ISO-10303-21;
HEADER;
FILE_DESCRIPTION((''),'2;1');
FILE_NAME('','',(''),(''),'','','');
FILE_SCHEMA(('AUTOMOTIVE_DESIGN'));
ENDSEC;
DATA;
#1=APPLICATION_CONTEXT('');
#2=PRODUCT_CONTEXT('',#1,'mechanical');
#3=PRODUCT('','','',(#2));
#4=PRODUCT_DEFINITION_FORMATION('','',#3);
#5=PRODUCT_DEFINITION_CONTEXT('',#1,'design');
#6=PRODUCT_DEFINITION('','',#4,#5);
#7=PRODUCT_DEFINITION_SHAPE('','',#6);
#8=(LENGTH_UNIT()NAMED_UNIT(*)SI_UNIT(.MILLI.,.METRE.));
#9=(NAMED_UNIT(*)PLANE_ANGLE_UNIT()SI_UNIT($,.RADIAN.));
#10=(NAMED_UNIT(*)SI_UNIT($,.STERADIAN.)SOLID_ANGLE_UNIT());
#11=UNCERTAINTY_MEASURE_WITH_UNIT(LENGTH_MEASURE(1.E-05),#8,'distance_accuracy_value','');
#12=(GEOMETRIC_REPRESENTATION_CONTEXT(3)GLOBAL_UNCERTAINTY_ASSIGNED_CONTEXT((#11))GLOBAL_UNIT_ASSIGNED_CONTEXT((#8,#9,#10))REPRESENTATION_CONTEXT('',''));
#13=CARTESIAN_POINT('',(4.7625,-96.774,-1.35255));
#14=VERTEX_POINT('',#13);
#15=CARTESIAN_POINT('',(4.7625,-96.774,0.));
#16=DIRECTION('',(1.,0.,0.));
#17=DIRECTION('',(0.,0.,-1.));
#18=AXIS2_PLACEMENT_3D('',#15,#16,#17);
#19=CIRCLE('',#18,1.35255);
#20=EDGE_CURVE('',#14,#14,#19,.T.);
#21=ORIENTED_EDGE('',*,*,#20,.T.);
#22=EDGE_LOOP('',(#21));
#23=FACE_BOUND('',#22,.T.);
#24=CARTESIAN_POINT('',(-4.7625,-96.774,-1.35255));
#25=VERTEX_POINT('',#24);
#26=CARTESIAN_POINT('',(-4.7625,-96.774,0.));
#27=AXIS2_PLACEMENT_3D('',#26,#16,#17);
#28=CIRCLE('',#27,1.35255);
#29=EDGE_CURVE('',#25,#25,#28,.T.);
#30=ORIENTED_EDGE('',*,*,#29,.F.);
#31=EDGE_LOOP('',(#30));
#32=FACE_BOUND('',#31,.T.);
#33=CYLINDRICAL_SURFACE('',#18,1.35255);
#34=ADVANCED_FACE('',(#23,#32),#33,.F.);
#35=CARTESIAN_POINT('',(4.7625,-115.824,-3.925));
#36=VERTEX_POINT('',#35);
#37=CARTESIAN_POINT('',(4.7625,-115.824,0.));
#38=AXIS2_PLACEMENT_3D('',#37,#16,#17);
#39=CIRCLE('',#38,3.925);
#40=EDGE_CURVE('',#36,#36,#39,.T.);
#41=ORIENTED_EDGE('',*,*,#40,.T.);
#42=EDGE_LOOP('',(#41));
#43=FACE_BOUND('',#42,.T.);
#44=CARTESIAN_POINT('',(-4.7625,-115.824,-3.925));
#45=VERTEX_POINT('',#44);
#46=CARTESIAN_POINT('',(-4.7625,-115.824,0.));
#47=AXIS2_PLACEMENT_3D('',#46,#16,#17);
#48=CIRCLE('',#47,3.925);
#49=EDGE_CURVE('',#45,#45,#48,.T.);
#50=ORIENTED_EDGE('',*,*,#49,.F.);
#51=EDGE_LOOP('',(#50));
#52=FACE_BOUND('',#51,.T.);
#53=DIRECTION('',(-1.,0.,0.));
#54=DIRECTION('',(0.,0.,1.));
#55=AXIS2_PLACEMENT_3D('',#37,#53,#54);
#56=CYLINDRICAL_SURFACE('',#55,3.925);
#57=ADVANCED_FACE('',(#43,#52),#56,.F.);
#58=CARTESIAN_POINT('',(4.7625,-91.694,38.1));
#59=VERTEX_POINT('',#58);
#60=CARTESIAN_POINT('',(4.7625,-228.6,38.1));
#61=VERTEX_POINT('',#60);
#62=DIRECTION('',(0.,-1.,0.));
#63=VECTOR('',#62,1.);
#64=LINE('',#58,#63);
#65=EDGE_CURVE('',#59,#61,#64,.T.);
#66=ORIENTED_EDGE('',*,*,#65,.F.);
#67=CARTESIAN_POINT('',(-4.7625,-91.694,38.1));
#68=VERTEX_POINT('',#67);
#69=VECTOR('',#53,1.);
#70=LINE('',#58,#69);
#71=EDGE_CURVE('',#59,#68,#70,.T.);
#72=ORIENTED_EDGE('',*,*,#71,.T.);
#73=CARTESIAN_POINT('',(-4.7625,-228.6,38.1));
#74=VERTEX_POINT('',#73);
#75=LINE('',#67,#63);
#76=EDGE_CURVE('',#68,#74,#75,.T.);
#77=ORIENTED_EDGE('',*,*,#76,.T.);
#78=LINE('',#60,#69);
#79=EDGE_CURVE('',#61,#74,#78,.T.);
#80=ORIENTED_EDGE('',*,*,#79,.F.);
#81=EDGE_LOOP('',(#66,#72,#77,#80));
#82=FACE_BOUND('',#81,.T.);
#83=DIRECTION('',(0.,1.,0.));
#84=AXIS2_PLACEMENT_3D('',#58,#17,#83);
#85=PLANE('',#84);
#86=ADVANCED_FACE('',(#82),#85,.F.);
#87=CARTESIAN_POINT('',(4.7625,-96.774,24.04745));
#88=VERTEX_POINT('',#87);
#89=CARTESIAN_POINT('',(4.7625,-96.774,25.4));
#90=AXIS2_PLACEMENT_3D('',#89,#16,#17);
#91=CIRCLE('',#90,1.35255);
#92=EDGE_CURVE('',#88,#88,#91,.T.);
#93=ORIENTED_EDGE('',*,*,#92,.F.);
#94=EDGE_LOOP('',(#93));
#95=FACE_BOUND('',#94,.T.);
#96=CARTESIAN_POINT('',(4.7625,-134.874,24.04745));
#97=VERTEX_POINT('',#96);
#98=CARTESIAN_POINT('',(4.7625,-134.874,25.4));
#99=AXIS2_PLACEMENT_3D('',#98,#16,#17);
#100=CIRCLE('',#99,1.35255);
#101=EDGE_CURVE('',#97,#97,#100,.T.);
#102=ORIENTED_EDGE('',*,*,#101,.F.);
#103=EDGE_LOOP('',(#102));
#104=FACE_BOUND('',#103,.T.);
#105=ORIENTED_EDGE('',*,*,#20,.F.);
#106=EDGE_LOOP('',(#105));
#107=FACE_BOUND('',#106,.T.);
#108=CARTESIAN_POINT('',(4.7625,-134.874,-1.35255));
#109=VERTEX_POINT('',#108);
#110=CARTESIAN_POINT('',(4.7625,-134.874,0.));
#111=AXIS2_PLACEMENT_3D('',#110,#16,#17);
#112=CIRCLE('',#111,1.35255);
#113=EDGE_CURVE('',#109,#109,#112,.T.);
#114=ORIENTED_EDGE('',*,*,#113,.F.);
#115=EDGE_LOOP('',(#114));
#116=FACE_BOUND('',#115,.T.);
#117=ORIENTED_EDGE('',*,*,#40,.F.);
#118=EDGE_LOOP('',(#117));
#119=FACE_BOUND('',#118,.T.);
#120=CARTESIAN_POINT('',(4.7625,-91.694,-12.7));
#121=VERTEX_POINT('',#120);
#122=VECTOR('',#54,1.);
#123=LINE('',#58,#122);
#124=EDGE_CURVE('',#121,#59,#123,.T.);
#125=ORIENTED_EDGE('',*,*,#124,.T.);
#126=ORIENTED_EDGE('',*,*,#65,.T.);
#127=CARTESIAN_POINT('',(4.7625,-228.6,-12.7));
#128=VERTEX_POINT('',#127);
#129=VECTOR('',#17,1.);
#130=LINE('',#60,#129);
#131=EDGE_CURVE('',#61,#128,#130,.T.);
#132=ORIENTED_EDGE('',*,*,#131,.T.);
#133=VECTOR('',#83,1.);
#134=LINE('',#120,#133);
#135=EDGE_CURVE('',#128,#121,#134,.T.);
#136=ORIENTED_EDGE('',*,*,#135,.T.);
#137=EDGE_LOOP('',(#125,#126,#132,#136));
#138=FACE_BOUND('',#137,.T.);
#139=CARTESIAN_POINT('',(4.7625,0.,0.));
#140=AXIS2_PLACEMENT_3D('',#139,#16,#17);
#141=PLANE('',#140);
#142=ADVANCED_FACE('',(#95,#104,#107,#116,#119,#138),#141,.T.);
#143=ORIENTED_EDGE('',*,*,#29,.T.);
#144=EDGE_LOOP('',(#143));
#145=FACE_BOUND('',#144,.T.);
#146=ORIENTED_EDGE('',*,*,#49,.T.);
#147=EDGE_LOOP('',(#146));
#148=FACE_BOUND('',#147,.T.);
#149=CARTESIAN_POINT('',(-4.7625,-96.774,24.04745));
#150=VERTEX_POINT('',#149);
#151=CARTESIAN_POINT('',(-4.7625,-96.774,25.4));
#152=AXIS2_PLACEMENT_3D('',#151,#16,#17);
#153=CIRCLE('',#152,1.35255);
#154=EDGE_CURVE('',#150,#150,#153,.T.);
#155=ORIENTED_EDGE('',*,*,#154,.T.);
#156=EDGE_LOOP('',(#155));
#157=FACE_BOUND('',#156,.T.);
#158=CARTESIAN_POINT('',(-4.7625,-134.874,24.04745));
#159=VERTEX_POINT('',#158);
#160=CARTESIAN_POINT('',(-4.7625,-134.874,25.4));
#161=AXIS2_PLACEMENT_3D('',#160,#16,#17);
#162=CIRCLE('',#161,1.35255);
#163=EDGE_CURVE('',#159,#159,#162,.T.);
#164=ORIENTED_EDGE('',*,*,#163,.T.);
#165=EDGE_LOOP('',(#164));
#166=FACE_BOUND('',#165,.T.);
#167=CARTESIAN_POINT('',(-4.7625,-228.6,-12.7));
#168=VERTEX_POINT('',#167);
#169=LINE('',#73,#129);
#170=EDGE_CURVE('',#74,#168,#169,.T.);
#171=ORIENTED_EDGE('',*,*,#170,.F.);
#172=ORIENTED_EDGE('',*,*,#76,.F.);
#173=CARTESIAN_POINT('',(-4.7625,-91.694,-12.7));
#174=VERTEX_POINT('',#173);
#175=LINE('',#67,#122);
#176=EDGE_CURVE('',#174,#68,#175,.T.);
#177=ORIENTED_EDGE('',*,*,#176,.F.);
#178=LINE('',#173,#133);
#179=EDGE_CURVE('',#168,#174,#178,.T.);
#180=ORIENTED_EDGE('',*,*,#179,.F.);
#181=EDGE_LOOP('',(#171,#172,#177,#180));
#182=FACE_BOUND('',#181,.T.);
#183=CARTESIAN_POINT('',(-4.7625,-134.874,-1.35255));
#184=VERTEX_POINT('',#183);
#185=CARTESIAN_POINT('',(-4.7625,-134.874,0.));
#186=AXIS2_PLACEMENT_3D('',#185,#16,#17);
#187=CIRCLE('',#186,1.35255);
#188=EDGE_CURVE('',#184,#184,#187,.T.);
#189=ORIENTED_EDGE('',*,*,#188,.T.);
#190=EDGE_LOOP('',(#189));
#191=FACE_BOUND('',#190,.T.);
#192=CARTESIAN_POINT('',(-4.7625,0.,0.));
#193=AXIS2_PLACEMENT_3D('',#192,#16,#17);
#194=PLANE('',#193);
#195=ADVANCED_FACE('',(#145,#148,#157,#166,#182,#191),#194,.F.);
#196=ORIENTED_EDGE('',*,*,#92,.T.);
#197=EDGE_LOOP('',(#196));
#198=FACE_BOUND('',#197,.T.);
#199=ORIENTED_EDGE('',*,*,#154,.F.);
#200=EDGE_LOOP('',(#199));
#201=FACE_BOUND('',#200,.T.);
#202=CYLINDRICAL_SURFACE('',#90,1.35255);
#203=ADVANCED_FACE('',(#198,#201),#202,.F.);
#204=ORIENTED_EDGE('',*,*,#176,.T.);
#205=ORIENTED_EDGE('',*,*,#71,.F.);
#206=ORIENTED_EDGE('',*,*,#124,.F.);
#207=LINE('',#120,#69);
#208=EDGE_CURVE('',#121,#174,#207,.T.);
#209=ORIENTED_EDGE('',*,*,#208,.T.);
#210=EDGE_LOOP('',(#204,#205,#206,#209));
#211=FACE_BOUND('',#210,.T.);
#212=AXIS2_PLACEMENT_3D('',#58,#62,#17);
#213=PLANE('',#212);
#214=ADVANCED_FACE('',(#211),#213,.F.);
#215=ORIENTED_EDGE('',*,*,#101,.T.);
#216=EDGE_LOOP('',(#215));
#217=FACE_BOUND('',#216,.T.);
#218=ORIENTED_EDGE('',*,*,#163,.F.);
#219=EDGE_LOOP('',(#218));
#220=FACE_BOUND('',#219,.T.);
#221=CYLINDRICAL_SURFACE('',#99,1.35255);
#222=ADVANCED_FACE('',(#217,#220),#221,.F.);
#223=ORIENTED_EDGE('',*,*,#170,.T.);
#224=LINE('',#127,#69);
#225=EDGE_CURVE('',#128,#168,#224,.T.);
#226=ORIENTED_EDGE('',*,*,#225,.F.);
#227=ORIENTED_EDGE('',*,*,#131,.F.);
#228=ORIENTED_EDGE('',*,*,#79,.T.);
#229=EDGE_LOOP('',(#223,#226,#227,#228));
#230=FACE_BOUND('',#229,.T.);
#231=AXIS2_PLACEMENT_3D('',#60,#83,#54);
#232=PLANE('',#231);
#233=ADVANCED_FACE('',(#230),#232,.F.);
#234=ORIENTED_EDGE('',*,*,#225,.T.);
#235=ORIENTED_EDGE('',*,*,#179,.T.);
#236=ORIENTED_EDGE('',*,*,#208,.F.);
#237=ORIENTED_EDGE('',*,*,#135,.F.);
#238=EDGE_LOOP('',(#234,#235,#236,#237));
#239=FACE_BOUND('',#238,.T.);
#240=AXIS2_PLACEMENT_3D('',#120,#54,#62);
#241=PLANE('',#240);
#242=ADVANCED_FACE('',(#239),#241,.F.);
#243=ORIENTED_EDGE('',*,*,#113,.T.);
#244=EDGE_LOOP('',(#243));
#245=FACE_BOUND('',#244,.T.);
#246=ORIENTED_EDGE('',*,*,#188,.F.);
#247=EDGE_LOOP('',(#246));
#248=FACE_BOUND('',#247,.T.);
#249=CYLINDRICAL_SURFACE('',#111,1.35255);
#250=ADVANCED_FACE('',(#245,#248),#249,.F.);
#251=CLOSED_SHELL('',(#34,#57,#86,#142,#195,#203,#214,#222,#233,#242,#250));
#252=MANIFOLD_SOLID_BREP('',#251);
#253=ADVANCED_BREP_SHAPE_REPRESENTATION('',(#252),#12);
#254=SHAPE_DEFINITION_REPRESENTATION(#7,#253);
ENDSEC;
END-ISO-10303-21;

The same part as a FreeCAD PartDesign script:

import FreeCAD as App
import Part
import Sketcher
Q = App.Units.Quantity


def add_polygon(sketch, points):
    """Adds a closed chain of lines whose ends are joined by coincident constraints."""
    first, n = sketch.GeometryCount, len(points)
    for a, b in zip(points, points[1:] + points[:1]):
        sketch.addGeometry(Part.LineSegment(App.Vector(*a, 0), App.Vector(*b, 0)), False)
    for i in range(n):
        sketch.addConstraint(Sketcher.Constraint("Coincident", first + i, 2, first + (i + 1) % n, 1))

doc = App.newDocument("Part")
body = doc.addObject("PartDesign::Body", "Body")

# Sketch on YZ plane
sketch1 = doc.addObject("Sketcher::SketchObject", "Sketch")
body.addObject(sketch1)
sketch1.AttachmentSupport = (doc.YZ_Plane, [""])
sketch1.MapMode = "FlatFace"
add_polygon(sketch1, [(-91.7, 38.1), (-228.6, 38.1), (-228.6, -12.7), (-91.7, -12.7)])  # lines 0-3
sketch1.addGeometry(Part.Circle(App.Vector(-115.8, 0, 0), App.Vector(0, 0, 1), 3.9), False)  # 4
sketch1.addConstraint([
    Sketcher.Constraint("Horizontal", 0),
    Sketcher.Constraint("Vertical", 1),
    Sketcher.Constraint("Horizontal", 2),
    Sketcher.Constraint("Vertical", 3),
    Sketcher.Constraint("PointOnObject", 4, 3, -1),
    Sketcher.Constraint("DistanceY", 1, 2, 1, 1, Q("2 in")),
    Sketcher.Constraint("DistanceX", 0, 2, -1, 1, Q("9 in")),
    Sketcher.Constraint("DistanceX", 0, 2, 0, 1, Q("5.39 in")),
    Sketcher.Constraint("DistanceY", -1, 1, 0, 2, Q("1.5 in")),
    Sketcher.Constraint("Diameter", 4, 7.85),
    Sketcher.Constraint("DistanceX", 4, 3, -1, 1, Q("4.56 in")),
])
pad1 = doc.addObject("PartDesign::Pad", "Pad")
body.addObject(pad1)
pad1.Profile = sketch1
pad1.Length = Q("0.375 in")
pad1.Midplane = True

# Sketch on YZ plane
sketch2 = doc.addObject("Sketcher::SketchObject", "Sketch001")
body.addObject(sketch2)
sketch2.AttachmentSupport = (doc.YZ_Plane, [""])
sketch2.MapMode = "FlatFace"
sketch2.AttachmentOffset = App.Placement(App.Vector(0, 0, 0.1875 * 25.4), App.Rotation())
sketch2.addGeometry([
    Part.Circle(App.Vector(-96.8, 25.4, 0), App.Vector(0, 0, 1), 1.4),
    Part.Circle(App.Vector(-96.8, 0, 0), App.Vector(0, 0, 1), 1.4),
    Part.Circle(App.Vector(-134.9, 0, 0), App.Vector(0, 0, 1), 1.4),
    Part.Circle(App.Vector(-134.9, 25.4, 0), App.Vector(0, 0, 1), 1.4),
], False)
sketch2.addConstraint([
    Sketcher.Constraint("Equal", 0, 1),
    Sketcher.Constraint("Equal", 1, 2),
    Sketcher.Constraint("Equal", 2, 3),
    Sketcher.Constraint("PointOnObject", 1, 3, -1),
    Sketcher.Constraint("PointOnObject", 2, 3, -1),
    Sketcher.Constraint("Horizontal", 0, 3, 3, 3),
    Sketcher.Constraint("Vertical", 0, 3, 1, 3),
    Sketcher.Constraint("Vertical", 2, 3, 3, 3),
    Sketcher.Constraint("DistanceY", -1, 1, 0, 3, Q("1 in")),
    Sketcher.Constraint("Diameter", 0, Q("0.1065 in")),
    Sketcher.Constraint("DistanceX", 2, 3, 1, 3, Q("1.5 in")),
    Sketcher.Constraint("DistanceX", 0, 3, -1, 1, Q("3.81 in")),
])
doc.recompute()
hole = doc.addObject("PartDesign::Hole", "Hole")
body.addObject(hole)
hole.Profile = sketch2
hole.ThreadType = "None"
hole.Diameter = Q("0.1065 in")
hole.DepthType = "ThroughAll"

doc.recompute()
